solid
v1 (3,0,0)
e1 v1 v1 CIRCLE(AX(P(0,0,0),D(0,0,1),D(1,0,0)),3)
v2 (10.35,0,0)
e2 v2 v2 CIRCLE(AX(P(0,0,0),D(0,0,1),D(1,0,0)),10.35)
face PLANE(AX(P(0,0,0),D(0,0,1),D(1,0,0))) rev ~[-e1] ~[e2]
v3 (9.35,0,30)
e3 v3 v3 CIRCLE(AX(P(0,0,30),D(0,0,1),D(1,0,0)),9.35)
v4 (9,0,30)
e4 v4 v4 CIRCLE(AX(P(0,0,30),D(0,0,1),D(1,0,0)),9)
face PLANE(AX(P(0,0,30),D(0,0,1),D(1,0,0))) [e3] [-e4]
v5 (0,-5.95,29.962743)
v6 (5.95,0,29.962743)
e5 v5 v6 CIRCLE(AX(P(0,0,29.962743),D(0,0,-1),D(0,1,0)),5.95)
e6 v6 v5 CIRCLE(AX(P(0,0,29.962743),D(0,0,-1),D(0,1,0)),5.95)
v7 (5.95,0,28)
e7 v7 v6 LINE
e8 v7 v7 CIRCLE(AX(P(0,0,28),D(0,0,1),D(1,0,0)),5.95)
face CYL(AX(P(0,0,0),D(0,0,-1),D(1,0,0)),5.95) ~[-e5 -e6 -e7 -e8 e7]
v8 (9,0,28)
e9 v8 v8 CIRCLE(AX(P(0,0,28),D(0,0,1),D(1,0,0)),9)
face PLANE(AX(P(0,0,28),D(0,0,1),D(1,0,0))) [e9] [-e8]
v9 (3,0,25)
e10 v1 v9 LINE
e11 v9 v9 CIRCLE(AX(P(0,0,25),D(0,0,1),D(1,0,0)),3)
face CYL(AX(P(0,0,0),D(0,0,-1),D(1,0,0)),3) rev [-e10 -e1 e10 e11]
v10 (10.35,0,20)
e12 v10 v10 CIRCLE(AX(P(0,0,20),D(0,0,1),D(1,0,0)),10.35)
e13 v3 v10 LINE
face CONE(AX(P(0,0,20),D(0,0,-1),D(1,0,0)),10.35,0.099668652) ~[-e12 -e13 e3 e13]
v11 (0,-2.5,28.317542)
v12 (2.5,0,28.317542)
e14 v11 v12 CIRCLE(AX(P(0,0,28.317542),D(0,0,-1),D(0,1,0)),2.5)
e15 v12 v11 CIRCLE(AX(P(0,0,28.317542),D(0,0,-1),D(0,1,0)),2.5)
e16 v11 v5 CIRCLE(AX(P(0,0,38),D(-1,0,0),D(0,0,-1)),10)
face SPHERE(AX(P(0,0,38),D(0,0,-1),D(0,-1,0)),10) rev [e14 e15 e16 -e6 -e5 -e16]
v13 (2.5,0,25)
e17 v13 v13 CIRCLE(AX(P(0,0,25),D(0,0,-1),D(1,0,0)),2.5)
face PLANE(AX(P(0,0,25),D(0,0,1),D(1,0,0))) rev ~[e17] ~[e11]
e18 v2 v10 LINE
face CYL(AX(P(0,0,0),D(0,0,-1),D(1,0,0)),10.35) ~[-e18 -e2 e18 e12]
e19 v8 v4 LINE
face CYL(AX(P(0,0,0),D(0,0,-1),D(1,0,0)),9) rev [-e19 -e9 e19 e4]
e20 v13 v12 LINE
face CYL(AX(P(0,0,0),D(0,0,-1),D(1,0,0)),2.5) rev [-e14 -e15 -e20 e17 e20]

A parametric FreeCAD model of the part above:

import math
import FreeCAD as App
import Part
import Sketcher
from FreeCAD import Vector


def edges_at(feature, points):
    """Names of the edges that pass closest to the given points."""
    edges = feature.Shape.Edges
    near = lambda p: min(range(len(edges)), key=lambda i: edges[i].distToShape(Part.Vertex(*p))[0])
    return sorted({f"Edge{near(p) + 1}" for p in points})

doc = App.newDocument("Part")
body = doc.addObject("PartDesign::Body", "Body")
body.AllowCompound = True

# Sketch on XY plane
sketch1 = body.newObject("Sketcher::SketchObject", "Sketch")
sketch1.AttachmentSupport = (doc.getObject("XY_Plane"), [""])
sketch1.MapMode = "FlatFace"
sketch1.addGeometry([
    Part.Circle(Vector(0, 0, 0), Vector(0, 0, 1), 5.95),
    Part.Circle(Vector(0, 0, 0), Vector(0, 0, 1), 2.5),
    Part.Circle(Vector(0, 0, 0), Vector(0, 0, 1), 10.35),
    Part.Circle(Vector(0, 0, 0), Vector(0, 0, 1), 9),
], False)
sketch1.addConstraint([
    Sketcher.Constraint("Coincident", 0, 3, -1, 1),
    Sketcher.Constraint("Coincident", 1, 3, -1, 1),
    Sketcher.Constraint("Coincident", 2, 3, -1, 1),
    Sketcher.Constraint("Coincident", 3, 3, -1, 1),
    Sketcher.Constraint("Diameter", 1, 5.0),
    Sketcher.Constraint("Diameter", 3, 18.0),
    Sketcher.Constraint("Diameter", 0, 11.9),
    Sketcher.Constraint("Diameter", 2, 20.7),
])
pad1 = body.newObject("PartDesign::Pad", "Pad")
pad1.Profile = sketch1
pad1.Length = 30

# Sketch on XY plane
sketch2 = body.newObject("Sketcher::SketchObject", "Sketch001")
sketch2.AttachmentSupport = (doc.getObject("XY_Plane"), [""])
sketch2.MapMode = "FlatFace"
sketch2.addGeometry([
    Part.Circle(Vector(0, 0, 0), Vector(0, 0, 1), 9),
    Part.Circle(Vector(0, 0, 0), Vector(0, 0, 1), 5.95),
], False)
sketch2.addConstraint([
    Sketcher.Constraint("Coincident", 0, 3, -1, 1),
    Sketcher.Constraint("Coincident", 1, 3, -1, 1),
    Sketcher.Constraint("Diameter", 0, 18.0),
    Sketcher.Constraint("Diameter", 1, 11.9),
])
pad2 = body.newObject("PartDesign::Pad", "Pad001")
pad2.Profile = sketch2
pad2.Length = 28

# Sketch on XY plane
sketch3 = body.newObject("Sketcher::SketchObject", "Sketch002")
sketch3.AttachmentSupport = (doc.getObject("XY_Plane"), [""])
sketch3.MapMode = "FlatFace"
sketch3.addGeometry(Part.Circle(Vector(0, 0, 0), Vector(0, 0, 1), 3), False)
sketch3.addConstraint([
    Sketcher.Constraint("Coincident", 0, 3, -1, 1),
    Sketcher.Constraint("Diameter", 0, 6.0),
])
pocket1 = body.newObject("PartDesign::Pocket", "Pocket")
pocket1.Profile = sketch3
pocket1.Length = 25
pocket1.Reversed = True
doc.recompute()

chamfer = body.newObject("PartDesign::Chamfer", "Chamfer")
chamfer.Base = (pocket1, edges_at(pocket1, [(-9.65, -3.743, 30)]))
chamfer.ChamferType = "Two distances"
chamfer.Size = 1
chamfer.Size2 = 10
chamfer.FlipDirection = True

# Sketch on YZ plane
sketch4 = body.newObject("Sketcher::SketchObject", "Sketch003")
sketch4.AttachmentSupport = (doc.getObject("YZ_Plane"), [""])
sketch4.MapMode = "FlatFace"
sketch4.addGeometry([
    Part.LineSegment(Vector(0, 38, 0), Vector(-10, 38, 0)),
    Part.ArcOfCircle(Part.Circle(Vector(0, 38, 0), Vector(0, 0, 1), 10), math.radians(180), math.radians(270)),
    Part.LineSegment(Vector(0, 28, 0), Vector(0, 38, 0)),
], False)
sketch4.addConstraint([
    Sketcher.Constraint("Coincident", 0, 2, 1, 1),
    Sketcher.Constraint("Coincident", 1, 2, 2, 1),
    Sketcher.Constraint("Coincident", 2, 2, 0, 1),
    Sketcher.Constraint("Horizontal", 0),
    Sketcher.Constraint("Vertical", 2),
    Sketcher.Constraint("Coincident", 2, 2, 1, 3),
    Sketcher.Constraint("PointOnObject", 1, 3, -2),
    Sketcher.Constraint("Radius", 1, 10.0),
    Sketcher.Constraint("DistanceY", -1, 1, 1, 3, 38.0),
])
groove = body.newObject("PartDesign::Groove", "Groove")
groove.Profile = sketch4
groove.ReferenceAxis = (sketch4, ["V_Axis"])
groove.Angle = 360

doc.recompute()
